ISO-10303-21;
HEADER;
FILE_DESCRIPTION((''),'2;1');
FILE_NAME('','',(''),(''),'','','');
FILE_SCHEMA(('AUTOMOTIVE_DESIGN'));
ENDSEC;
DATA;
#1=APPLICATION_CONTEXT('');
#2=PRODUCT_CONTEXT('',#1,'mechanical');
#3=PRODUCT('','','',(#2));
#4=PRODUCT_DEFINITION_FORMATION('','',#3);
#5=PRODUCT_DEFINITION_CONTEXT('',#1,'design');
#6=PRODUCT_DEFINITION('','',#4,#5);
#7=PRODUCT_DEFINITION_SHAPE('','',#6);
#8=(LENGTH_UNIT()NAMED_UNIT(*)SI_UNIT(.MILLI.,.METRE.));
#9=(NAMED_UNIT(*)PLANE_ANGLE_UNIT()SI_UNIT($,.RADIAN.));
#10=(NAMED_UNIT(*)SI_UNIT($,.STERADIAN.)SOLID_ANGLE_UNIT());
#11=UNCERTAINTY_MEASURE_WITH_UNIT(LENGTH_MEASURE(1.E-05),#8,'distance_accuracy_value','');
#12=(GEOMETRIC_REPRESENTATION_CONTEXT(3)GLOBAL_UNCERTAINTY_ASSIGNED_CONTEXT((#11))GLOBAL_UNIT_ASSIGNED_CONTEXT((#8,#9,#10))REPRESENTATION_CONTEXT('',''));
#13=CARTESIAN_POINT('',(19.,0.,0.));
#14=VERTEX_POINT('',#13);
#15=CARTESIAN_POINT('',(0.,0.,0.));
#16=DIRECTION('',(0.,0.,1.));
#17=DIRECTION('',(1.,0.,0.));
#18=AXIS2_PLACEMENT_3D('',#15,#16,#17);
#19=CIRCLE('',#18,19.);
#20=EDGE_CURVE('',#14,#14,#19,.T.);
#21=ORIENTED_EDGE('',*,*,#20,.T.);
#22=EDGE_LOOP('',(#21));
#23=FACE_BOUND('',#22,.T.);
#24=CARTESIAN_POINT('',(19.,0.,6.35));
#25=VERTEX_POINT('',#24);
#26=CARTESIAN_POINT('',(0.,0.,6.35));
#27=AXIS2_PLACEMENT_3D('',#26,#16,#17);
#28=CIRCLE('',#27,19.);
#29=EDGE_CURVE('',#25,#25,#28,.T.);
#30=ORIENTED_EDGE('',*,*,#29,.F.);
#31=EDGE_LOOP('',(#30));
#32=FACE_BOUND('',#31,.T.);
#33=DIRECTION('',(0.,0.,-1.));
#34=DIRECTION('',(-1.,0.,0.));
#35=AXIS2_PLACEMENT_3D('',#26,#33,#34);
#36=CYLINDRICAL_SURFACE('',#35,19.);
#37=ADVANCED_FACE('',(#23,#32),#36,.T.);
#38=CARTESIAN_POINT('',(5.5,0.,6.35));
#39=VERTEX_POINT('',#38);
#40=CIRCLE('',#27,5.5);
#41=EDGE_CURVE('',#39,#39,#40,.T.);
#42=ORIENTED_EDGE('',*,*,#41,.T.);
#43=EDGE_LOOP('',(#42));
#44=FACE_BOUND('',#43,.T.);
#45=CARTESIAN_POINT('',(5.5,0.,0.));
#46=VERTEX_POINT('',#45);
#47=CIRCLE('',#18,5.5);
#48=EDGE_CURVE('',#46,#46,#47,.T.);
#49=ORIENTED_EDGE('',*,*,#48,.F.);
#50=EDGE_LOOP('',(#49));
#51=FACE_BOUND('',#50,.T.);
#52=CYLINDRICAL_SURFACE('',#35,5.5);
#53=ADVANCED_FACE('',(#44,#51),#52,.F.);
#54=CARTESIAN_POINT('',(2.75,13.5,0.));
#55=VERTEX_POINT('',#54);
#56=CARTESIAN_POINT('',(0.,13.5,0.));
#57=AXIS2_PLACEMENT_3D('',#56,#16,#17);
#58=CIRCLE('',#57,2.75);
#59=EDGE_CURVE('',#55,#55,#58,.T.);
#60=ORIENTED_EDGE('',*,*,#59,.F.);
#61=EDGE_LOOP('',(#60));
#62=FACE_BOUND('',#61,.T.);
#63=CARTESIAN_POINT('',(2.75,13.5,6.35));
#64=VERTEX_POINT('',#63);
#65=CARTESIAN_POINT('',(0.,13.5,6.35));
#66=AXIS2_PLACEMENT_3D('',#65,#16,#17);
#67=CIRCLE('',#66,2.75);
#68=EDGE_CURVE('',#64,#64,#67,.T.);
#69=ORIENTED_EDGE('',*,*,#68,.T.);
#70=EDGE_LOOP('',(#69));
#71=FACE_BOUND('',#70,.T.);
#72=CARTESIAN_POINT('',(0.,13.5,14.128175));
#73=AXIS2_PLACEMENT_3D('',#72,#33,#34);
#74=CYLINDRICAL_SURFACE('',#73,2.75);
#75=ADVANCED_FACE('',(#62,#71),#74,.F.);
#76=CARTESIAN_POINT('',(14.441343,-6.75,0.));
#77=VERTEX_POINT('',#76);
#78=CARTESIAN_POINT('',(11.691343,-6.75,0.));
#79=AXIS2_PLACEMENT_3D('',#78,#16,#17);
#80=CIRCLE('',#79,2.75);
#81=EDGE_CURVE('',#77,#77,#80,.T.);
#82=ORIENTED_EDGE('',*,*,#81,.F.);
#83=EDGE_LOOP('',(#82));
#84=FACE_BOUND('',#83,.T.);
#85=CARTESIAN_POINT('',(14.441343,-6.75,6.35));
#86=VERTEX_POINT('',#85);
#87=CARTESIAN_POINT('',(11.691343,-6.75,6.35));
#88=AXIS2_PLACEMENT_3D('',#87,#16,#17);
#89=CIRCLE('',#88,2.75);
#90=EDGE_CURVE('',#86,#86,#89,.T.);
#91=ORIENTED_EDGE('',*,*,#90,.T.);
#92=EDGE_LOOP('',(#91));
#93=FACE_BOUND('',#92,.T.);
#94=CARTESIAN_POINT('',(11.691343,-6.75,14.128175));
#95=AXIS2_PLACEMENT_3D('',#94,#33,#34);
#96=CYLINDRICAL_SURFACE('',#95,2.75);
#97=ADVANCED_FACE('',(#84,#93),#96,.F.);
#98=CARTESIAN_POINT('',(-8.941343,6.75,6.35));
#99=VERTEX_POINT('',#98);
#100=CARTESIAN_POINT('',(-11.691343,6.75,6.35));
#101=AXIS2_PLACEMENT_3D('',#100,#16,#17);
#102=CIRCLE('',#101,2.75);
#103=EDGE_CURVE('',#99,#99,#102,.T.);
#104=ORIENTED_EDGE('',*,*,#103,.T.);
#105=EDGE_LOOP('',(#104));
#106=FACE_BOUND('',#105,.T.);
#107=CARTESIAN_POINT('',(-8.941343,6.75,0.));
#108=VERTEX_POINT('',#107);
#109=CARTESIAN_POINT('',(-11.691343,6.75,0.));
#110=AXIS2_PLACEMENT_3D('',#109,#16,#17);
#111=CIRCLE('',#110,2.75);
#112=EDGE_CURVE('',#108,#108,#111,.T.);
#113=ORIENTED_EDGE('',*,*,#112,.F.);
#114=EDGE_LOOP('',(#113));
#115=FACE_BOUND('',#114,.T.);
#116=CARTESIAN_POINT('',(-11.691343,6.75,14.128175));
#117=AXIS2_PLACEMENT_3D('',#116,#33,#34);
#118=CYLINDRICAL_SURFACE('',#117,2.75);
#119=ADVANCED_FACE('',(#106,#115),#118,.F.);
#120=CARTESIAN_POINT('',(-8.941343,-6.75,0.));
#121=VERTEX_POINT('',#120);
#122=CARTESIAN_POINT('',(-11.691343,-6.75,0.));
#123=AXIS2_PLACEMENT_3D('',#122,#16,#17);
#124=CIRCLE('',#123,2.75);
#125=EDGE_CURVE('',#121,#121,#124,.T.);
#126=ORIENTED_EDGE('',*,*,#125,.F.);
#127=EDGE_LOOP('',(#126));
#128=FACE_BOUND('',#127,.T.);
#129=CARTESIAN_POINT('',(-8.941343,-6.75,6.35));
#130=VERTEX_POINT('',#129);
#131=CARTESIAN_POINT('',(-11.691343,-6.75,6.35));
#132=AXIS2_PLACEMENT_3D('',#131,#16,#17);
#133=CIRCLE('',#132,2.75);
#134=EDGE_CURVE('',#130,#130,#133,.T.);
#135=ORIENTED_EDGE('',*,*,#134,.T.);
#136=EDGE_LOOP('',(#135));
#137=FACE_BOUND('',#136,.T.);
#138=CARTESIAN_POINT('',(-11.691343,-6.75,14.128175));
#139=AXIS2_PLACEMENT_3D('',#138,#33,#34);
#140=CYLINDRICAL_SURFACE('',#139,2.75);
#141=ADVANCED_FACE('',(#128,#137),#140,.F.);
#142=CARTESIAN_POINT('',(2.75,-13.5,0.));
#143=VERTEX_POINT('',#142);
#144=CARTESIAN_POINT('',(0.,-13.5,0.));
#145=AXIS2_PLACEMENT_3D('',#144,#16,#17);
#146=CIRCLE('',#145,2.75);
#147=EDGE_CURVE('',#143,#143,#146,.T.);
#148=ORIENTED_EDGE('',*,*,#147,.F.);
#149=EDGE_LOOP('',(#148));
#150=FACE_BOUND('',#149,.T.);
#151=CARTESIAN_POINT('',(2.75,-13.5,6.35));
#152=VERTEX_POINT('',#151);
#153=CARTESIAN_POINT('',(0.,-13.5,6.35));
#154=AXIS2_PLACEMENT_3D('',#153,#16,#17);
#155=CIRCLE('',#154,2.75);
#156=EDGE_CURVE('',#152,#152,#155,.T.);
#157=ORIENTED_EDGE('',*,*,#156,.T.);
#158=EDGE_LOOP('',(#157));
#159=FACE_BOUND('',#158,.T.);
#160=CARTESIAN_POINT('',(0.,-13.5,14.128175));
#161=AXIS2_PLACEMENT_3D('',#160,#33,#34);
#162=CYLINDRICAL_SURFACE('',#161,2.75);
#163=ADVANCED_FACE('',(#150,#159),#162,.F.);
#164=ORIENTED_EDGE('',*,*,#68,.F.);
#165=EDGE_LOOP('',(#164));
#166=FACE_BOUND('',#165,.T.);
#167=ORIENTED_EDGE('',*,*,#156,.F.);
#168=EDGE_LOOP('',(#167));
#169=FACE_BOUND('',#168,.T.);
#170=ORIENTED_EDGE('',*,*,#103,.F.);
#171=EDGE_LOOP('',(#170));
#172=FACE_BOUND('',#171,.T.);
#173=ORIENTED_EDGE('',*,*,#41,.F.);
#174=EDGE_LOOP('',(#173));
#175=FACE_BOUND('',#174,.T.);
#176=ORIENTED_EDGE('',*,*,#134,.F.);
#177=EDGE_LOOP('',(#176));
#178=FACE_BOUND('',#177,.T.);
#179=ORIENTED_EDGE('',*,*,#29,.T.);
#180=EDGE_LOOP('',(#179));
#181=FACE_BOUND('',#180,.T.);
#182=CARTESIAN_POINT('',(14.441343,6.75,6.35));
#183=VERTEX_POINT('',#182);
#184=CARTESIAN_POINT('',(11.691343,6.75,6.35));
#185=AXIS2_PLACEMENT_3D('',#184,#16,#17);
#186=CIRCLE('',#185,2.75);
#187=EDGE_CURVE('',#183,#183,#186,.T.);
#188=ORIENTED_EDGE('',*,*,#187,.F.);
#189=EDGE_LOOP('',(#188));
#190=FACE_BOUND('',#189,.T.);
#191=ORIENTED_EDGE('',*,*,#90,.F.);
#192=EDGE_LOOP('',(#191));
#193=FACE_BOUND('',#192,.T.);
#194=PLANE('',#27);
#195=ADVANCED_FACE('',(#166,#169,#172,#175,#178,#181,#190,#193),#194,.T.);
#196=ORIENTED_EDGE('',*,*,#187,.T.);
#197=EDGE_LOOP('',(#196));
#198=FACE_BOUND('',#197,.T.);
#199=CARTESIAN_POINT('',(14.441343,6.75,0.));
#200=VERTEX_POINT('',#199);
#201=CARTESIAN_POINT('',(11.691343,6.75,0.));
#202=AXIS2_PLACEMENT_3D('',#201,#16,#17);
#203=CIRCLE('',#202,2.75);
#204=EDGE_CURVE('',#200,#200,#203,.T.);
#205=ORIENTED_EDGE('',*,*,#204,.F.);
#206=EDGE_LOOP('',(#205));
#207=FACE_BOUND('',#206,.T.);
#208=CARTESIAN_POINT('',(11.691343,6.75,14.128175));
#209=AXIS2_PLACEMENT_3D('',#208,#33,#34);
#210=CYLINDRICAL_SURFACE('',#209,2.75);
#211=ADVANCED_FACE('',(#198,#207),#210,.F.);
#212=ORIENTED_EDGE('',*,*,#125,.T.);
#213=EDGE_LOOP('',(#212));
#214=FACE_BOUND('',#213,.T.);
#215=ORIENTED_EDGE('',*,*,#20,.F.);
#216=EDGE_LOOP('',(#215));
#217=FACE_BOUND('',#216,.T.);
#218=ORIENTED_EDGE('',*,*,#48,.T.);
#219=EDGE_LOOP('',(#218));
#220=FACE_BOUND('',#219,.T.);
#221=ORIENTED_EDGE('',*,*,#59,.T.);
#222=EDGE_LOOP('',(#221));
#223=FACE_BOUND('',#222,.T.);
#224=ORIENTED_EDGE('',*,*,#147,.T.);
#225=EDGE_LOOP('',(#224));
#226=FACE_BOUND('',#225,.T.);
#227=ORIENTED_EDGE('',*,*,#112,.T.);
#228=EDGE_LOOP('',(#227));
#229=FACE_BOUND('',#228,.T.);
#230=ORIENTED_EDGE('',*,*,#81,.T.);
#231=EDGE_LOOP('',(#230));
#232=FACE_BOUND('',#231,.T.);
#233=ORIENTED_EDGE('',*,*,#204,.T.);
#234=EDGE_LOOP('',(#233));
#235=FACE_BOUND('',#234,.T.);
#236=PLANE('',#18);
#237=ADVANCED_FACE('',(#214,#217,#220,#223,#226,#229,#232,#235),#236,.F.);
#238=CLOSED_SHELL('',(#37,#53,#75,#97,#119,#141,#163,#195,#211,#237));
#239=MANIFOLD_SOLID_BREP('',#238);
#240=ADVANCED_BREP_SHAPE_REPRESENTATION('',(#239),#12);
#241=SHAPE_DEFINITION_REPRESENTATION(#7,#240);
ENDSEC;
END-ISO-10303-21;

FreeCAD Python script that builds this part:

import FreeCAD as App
import Part
import Sketcher
from FreeCAD import Vector

doc = App.newDocument("Part")
body = doc.addObject("PartDesign::Body", "Body")

# Sketch on XY plane
sketch1 = body.newObject("Sketcher::SketchObject", "Sketch")
sketch1.AttachmentSupport = (doc.getObject("XY_Plane"), [""])
sketch1.MapMode = "FlatFace"
sketch1.addGeometry([
    Part.Circle(Vector(0, 0, 0), Vector(0, 0, 1), 19),
    Part.Circle(Vector(0, 0, 0), Vector(0, 0, 1), 6),
], False)
sketch1.addConstraint([
    Sketcher.Constraint("Coincident", 0, 3, -1, 1),
    Sketcher.Constraint("Coincident", 1, 3, -1, 1),
    Sketcher.Constraint("Diameter", 0, 38.0),
    Sketcher.Constraint("Diameter", 1, 11.0),
])
pad1 = body.newObject("PartDesign::Pad", "Pad")
pad1.Profile = sketch1
pad1.Length = 6.35

# Sketch on XY plane
sketch2 = body.newObject("Sketcher::SketchObject", "Sketch001")
sketch2.AttachmentSupport = (doc.getObject("XY_Plane"), [""])
sketch2.MapMode = "FlatFace"
sketch2.addGeometry([
    Part.Circle(Vector(0, 13.5, 0), Vector(0, 0, 1), 2.8),  # 0
    Part.Circle(Vector(11.7, 6.8, 0), Vector(0, 0, 1), 2.8),  # 1
    Part.Circle(Vector(11.7, -6.8, 0), Vector(0, 0, 1), 2.8),  # 2
    Part.Circle(Vector(0, -13.5, 0), Vector(0, 0, 1), 2.8),  # 3
    Part.Circle(Vector(-11.7, -6.8, 0), Vector(0, 0, 1), 2.8),  # 4
    Part.Circle(Vector(-11.7, 6.8, 0), Vector(0, 0, 1), 2.8),  # 5
], False)
sketch2.addConstraint([
    Sketcher.Constraint("Equal", 0, 1),
    Sketcher.Constraint("Equal", 1, 2),
    Sketcher.Constraint("Equal", 2, 3),
    Sketcher.Constraint("Equal", 3, 4),
    Sketcher.Constraint("Equal", 4, 5),
    Sketcher.Constraint("Symmetric", 0, 3, 3, 3, -1, 1),
    Sketcher.Constraint("Symmetric", 1, 3, 4, 3, -1, 1),
    Sketcher.Constraint("Symmetric", 2, 3, 5, 3, -1, 1),
    Sketcher.Constraint("Symmetric", 2, 3, 4, 3, -2),
    Sketcher.Constraint("PointOnObject", 0, 3, -2),
    Sketcher.Constraint("Diameter", 0, 5.5),
    Sketcher.Constraint("DistanceY", 3, 3, 0, 3, 27.0),
    Sketcher.Constraint("DistanceY", 2, 3, 1, 3, 13.5),
    Sketcher.Constraint("DistanceX", -1, 1, 1, 3, 11.691343),
])
pocket1 = body.newObject("PartDesign::Pocket", "Pocket")
pocket1.Profile = sketch2
pocket1.Length = 6.35
pocket1.Reversed = True

doc.recompute()
